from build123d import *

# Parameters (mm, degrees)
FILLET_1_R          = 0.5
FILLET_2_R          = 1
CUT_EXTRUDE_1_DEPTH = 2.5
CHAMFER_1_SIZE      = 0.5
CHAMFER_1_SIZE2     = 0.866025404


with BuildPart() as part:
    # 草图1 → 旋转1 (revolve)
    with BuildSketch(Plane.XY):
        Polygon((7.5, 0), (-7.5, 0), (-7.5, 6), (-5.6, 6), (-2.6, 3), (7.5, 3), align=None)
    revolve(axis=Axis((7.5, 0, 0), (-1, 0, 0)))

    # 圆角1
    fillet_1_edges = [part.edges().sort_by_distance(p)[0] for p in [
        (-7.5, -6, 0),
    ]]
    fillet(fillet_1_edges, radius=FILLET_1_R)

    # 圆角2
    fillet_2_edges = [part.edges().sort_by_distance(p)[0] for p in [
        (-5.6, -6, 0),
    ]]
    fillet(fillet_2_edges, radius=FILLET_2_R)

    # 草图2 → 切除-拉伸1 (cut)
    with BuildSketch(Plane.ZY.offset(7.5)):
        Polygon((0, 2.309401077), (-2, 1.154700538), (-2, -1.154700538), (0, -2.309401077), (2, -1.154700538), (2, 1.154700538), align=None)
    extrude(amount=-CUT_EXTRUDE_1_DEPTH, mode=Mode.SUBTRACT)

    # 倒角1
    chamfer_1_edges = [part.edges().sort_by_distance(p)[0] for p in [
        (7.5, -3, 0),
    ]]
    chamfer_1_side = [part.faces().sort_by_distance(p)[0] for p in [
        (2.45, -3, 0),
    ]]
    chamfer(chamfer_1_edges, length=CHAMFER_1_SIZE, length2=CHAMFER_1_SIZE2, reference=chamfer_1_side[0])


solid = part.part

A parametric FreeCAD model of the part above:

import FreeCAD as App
import Part
import Sketcher

V = App.Vector
Q = App.Units.Quantity


def edges_at(feature, points):
    """Names of the edges that pass closest to the given points."""
    edges = feature.Shape.Edges
    near = lambda p: min(range(len(edges)), key=lambda i: edges[i].distToShape(Part.Vertex(*p))[0])
    return sorted({f"Edge{near(p) + 1}" for p in points})


def add_polygon(sketch, points):
    """Adds a closed chain of lines whose ends are joined by coincident constraints."""
    first, n = sketch.GeometryCount, len(points)
    for a, b in zip(points, points[1:] + points[:1]):
        sketch.addGeometry(Part.LineSegment(App.Vector(*a, 0), App.Vector(*b, 0)), False)
    for i in range(n):
        sketch.addConstraint(Sketcher.Constraint("Coincident", first + i, 2, first + (i + 1) % n, 1))

doc = App.newDocument("Part")
params = doc.addObject("Spreadsheet::Sheet", "Params")
for row, (alias, value) in enumerate([
    ("sketch1_width", "15 mm"),
    ("sketch1_height", "3 mm"),
    ("sketch1_height2", "6 mm"),
    ("sketch1_width2", "10.1 mm"),
    ("revolution_angle", "360 deg"),
    ("fillet_radius", "0.5 mm"),
    ("fillet2_radius", "1 mm"),
    ("pocket1_length", "2.5 mm"),
    ("chamfer_size", "0.5 mm"),
    ("chamfer_size2", "0.866025 mm"),
], start=1):
    params.set(f"A{row}", alias)
    params.set(f"B{row}", "=" + value)
    params.setAlias(f"B{row}", alias)

body = doc.addObject("PartDesign::Body", "Body")

# Sketch on XY plane
sketch1 = body.newObject("Sketcher::SketchObject", "Sketch")
sketch1.AttachmentSupport = (doc.getObject("XY_Plane"), [""])
sketch1.MapMode = "FlatFace"
add_polygon(sketch1, [(-7.5, 0), (7.5, 0), (7.5, 3), (-2.6, 3), (-5.6, 6), (-7.5, 6)])  # lines 0-5
sketch1.addConstraint(Sketcher.Constraint("Horizontal", 0))
sketch1.addConstraint(Sketcher.Constraint("Vertical", 1))
sketch1.addConstraint(Sketcher.Constraint("Horizontal", 2))
sketch1.addConstraint(Sketcher.Constraint("Horizontal", 4))
sketch1.addConstraint(Sketcher.Constraint("Vertical", 5))
sketch1.addConstraint(Sketcher.Constraint("Symmetric", 0, 2, 5, 2, -1, 1))
sketch1.addConstraint(Sketcher.Constraint("DistanceX", 0, 1, 0, 2, Q("15 mm")))
sketch1.addConstraint(Sketcher.Constraint("DistanceY", 1, 1, 1, 2, Q("3 mm")))
sketch1.addConstraint(Sketcher.Constraint("DistanceY", 5, 2, 5, 1, Q("6 mm")))
sketch1.addConstraint(Sketcher.Constraint("Angle", 3, Q("135 deg")))
sketch1.addConstraint(Sketcher.Constraint("DistanceX", 2, 2, 2, 1, Q("10.1 mm")))
sketch1.setExpression("Constraints[12]", "Params.sketch1_width")
sketch1.setExpression("Constraints[13]", "Params.sketch1_height")
sketch1.setExpression("Constraints[14]", "Params.sketch1_height2")
sketch1.setExpression("Constraints[16]", "Params.sketch1_width2")
revolution = body.newObject("PartDesign::Revolution", "Revolution")
revolution.Profile = sketch1
revolution.ReferenceAxis = (sketch1, ["H_Axis"])
revolution.setExpression("Angle", "Params.revolution_angle")
doc.recompute()

fillet = body.newObject("PartDesign::Fillet", "Fillet")
fillet.Base = (revolution, edges_at(revolution, [(-7.5, -6, 0)]))
fillet.setExpression("Radius", "Params.fillet_radius")
doc.recompute()

fillet2 = body.newObject("PartDesign::Fillet", "Fillet001")
fillet2.Base = (fillet, edges_at(fillet, [(-5.6, -6, 0)]))
fillet2.setExpression("Radius", "Params.fillet2_radius")

# Sketch on YZ plane
sketch2 = body.newObject("Sketcher::SketchObject", "Sketch001")
sketch2.AttachmentSupport = (doc.getObject("YZ_Plane"), [""])
sketch2.MapMode = "FlatFace"
sketch2.AttachmentOffset = App.Placement(V(0, 0, -7.5), App.Rotation())
add_polygon(sketch2, [(2.309401, 0), (1.154701, -2), (-1.154701, -2), (-2.309401, 0), (-1.154701, 2), (1.154701, 2)])  # lines 0-5
sketch2.addConstraint(Sketcher.Constraint("Horizontal", 1))
sketch2.addConstraint(Sketcher.Constraint("Horizontal", 4))
sketch2.addConstraint(Sketcher.Constraint("Symmetric", 0, 2, 3, 2, -1, 1))
sketch2.addConstraint(Sketcher.Constraint("Symmetric", 2, 2, 5, 2, -1, 1))
sketch2.addConstraint(Sketcher.Constraint("PointOnObject", 2, 2, -1))
sketch2.addConstraint(Sketcher.Constraint("Parallel", 2, 5))
sketch2.addConstraint(Sketcher.Constraint("Vertical", 1, 2, 3, 2))
sketch2.addConstraint(Sketcher.Constraint("Angle", 0, Q("-120 deg")))
sketch2.addConstraint(Sketcher.Constraint("DistanceY", 0, 2, -1, 1, Q("2 mm")))
sketch2.addConstraint(Sketcher.Constraint("DistanceX", 1, 2, 1, 1, Q("2.309401 mm")))
pocket1 = body.newObject("PartDesign::Pocket", "Pocket")
pocket1.Profile = sketch2
pocket1.setExpression("Length", "Params.pocket1_length")
pocket1.Reversed = True
doc.recompute()

chamfer = body.newObject("PartDesign::Chamfer", "Chamfer")
chamfer.Base = (pocket1, edges_at(pocket1, [(7.5, -3, 0)]))
chamfer.ChamferType = "Two distances"
chamfer.setExpression("Size", "Params.chamfer_size")
chamfer.setExpression("Size2", "Params.chamfer_size2")

doc.recompute()
